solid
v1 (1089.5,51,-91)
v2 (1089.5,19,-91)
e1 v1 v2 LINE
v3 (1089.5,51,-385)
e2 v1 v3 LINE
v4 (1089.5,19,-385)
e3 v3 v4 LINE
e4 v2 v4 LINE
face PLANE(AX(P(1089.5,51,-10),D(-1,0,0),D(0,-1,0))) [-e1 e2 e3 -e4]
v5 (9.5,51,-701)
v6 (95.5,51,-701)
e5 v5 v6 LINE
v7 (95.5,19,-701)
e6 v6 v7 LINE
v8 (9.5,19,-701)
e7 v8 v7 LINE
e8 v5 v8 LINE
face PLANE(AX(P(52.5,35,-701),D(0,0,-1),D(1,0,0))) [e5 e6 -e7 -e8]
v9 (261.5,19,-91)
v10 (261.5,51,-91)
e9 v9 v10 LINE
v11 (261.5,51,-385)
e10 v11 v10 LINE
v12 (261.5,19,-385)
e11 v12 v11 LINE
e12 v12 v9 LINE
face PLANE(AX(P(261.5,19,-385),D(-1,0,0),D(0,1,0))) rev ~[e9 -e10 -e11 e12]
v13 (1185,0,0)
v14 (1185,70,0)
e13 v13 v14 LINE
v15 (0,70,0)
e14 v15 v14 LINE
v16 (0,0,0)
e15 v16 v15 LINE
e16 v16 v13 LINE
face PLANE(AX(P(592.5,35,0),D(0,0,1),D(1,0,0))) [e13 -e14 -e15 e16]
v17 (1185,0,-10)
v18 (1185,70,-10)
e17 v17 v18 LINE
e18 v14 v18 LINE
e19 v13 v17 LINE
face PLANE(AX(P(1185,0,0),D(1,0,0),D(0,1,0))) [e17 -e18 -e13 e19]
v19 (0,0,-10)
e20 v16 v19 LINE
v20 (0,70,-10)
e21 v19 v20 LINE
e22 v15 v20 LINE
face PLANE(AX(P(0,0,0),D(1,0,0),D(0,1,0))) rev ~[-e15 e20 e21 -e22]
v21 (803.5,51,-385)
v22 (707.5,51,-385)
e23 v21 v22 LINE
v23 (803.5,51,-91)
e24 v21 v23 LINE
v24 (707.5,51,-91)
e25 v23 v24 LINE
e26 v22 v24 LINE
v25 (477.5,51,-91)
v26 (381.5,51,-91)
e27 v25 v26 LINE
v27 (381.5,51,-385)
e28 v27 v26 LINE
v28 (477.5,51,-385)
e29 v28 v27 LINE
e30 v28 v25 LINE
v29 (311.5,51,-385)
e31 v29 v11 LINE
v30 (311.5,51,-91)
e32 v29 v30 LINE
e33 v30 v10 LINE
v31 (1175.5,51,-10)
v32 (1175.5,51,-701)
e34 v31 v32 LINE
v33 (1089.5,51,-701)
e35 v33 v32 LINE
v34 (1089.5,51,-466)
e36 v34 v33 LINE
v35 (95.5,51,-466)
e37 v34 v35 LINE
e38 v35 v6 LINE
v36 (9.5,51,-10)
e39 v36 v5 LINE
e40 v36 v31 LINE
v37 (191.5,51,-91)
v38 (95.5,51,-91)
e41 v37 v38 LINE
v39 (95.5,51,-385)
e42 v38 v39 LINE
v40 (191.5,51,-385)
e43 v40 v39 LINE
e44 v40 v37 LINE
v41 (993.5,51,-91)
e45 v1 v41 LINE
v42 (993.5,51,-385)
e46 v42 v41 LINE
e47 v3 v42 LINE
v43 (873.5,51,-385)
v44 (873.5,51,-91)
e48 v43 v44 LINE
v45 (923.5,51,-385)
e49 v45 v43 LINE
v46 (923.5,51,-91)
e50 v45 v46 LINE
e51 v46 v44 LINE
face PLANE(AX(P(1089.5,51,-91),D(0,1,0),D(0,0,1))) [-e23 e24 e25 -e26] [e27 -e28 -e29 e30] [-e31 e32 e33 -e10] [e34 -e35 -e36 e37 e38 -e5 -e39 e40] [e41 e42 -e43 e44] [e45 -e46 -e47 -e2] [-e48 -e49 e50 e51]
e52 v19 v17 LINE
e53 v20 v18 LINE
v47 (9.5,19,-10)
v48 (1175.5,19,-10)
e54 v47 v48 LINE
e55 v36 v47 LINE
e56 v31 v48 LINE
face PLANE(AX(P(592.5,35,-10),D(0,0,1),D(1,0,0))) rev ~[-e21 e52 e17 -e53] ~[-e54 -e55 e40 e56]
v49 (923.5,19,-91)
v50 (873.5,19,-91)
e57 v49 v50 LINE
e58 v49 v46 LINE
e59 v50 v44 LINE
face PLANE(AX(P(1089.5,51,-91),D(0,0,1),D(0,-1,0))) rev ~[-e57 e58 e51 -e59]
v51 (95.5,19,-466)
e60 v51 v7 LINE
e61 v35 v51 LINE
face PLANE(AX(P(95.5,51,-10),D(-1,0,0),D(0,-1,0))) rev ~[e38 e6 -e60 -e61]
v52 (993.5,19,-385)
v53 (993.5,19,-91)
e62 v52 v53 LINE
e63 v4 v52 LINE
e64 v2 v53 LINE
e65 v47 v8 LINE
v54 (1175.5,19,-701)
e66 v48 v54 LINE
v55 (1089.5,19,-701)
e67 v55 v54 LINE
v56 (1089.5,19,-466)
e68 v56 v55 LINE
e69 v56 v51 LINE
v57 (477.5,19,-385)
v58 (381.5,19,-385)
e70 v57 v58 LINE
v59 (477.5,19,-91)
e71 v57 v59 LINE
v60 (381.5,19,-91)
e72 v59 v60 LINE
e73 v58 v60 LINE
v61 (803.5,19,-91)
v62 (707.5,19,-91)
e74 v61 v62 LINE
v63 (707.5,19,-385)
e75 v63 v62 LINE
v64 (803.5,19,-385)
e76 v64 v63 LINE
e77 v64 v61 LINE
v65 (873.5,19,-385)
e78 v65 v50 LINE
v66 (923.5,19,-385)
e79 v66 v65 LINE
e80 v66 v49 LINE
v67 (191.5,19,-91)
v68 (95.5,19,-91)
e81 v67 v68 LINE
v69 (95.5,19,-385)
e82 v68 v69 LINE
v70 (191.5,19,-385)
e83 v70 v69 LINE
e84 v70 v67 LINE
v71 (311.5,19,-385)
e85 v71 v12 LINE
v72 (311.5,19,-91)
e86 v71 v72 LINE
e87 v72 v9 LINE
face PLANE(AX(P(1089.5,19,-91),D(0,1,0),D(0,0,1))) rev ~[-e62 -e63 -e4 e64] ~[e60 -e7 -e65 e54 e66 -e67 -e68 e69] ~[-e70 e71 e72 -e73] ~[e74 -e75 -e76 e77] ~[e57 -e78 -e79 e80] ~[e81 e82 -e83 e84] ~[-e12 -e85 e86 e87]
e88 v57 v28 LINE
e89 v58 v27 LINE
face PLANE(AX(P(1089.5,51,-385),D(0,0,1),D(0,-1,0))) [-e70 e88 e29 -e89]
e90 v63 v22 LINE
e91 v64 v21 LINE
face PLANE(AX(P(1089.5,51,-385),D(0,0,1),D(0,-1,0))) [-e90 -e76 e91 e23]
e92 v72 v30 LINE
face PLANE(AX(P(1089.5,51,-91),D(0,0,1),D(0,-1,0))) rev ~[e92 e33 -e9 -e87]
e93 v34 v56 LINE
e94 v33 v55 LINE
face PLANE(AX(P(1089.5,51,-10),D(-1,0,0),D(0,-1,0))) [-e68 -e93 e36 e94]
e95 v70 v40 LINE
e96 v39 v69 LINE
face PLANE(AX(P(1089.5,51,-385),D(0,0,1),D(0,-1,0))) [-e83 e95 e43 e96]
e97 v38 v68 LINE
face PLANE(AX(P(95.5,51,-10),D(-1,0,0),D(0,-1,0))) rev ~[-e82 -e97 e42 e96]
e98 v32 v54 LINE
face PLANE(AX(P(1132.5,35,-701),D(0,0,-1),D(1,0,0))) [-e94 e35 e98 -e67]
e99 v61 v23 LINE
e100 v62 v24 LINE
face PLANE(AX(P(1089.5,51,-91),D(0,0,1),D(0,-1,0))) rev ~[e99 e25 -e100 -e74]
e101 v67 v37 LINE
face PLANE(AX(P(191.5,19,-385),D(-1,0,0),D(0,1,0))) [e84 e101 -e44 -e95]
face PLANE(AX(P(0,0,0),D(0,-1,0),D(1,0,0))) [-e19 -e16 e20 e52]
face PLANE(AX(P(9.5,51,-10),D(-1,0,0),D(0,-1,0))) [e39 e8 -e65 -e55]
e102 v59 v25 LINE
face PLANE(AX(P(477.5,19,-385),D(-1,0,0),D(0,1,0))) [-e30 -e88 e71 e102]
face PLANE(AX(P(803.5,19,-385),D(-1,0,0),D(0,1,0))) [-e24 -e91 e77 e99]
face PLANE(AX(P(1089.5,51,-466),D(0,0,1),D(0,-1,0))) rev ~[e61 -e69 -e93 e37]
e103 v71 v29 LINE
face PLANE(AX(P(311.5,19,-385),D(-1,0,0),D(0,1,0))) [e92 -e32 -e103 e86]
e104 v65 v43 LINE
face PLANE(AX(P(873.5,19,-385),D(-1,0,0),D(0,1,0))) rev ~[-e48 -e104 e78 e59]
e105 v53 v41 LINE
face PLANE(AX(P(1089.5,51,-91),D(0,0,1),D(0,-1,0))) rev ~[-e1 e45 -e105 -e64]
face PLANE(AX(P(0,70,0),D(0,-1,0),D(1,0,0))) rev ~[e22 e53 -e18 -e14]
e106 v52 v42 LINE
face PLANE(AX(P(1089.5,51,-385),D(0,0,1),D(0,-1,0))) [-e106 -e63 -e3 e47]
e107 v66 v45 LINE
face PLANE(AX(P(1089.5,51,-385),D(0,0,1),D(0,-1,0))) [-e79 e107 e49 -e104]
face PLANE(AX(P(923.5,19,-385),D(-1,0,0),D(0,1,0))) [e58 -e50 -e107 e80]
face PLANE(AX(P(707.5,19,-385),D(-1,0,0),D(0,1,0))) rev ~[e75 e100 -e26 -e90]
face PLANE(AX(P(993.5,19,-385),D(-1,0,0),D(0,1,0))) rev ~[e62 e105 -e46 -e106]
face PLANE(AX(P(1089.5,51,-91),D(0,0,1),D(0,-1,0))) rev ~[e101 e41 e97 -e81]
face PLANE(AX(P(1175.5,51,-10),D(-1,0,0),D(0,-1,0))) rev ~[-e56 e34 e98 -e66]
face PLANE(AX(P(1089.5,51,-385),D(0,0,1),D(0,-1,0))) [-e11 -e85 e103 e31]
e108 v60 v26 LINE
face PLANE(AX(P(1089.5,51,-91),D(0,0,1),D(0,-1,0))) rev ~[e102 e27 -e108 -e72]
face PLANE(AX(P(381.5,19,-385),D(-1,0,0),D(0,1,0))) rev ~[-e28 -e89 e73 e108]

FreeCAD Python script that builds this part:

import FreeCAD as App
import Part
import Sketcher

V = App.Vector
Q = App.Units.Quantity

doc = App.newDocument("Part")
body = doc.addObject("PartDesign::Body", "Body")

# Sketch on XY plane
sketch1 = body.newObject("Sketcher::SketchObject", "Sketch")
sketch1.AttachmentSupport = (doc.getObject("XY_Plane"), [""])
sketch1.MapMode = "FlatFace"
sketch1.addGeometry([
    Part.LineSegment(V(0, 70, 0), V(0, 0, 0)),
    Part.LineSegment(V(0, 0, 0), V(1185, 0, 0)),
    Part.LineSegment(V(1185, 0, 0), V(1185, 70, 0)),
    Part.LineSegment(V(1185, 70, 0), V(0, 70, 0)),
], False)
sketch1.addConstraint([
    Sketcher.Constraint("Coincident", 0, 2, 1, 1),
    Sketcher.Constraint("Coincident", 1, 2, 2, 1),
    Sketcher.Constraint("Coincident", 2, 2, 3, 1),
    Sketcher.Constraint("Coincident", 3, 2, 0, 1),
    Sketcher.Constraint("Vertical", 0),
    Sketcher.Constraint("Horizontal", 1),
    Sketcher.Constraint("Vertical", 2),
    Sketcher.Constraint("Horizontal", 3),
    Sketcher.Constraint("Coincident", 0, 2, -1, 1),
    Sketcher.Constraint("DistanceX", 1, 1, 1, 2, Q("1185 mm")),
    Sketcher.Constraint("DistanceY", 0, 2, 0, 1, Q("70 mm")),
])
pad1 = body.newObject("PartDesign::Pad", "Pad")
pad1.Profile = sketch1
pad1.Length = 10
pad1.Reversed = True

# Sketch on XY plane
sketch2 = body.newObject("Sketcher::SketchObject", "Sketch001")
sketch2.AttachmentSupport = (doc.getObject("XY_Plane"), [""])
sketch2.MapMode = "FlatFace"
sketch2.AttachmentOffset = App.Placement(V(0, 0, -10), App.Rotation())
sketch2.addGeometry([
    Part.LineSegment(V(9.5, 19, 0), V(9.5, 51, 0)),  # 0
    Part.LineSegment(V(9.5, 51, 0), V(95.5, 51, 0)),  # 1
    Part.LineSegment(V(95.5, 51, 0), V(95.5, 19, 0)),  # 2
    Part.LineSegment(V(95.5, 19, 0), V(9.5, 19, 0)),  # 3
    Part.LineSegment(V(1089.5, 19, 0), V(1089.5, 51, 0)),  # 4
    Part.LineSegment(V(1089.5, 51, 0), V(1175.5, 51, 0)),  # 5
    Part.LineSegment(V(1175.5, 51, 0), V(1175.5, 19, 0)),  # 6
    Part.LineSegment(V(1175.5, 19, 0), V(1089.5, 19, 0)),  # 7
], False)
sketch2.addConstraint([
    Sketcher.Constraint("Coincident", 0, 2, 1, 1),
    Sketcher.Constraint("Coincident", 1, 2, 2, 1),
    Sketcher.Constraint("Coincident", 2, 2, 3, 1),
    Sketcher.Constraint("Coincident", 3, 2, 0, 1),
    Sketcher.Constraint("Coincident", 4, 2, 5, 1),
    Sketcher.Constraint("Coincident", 5, 2, 6, 1),
    Sketcher.Constraint("Coincident", 6, 2, 7, 1),
    Sketcher.Constraint("Coincident", 7, 2, 4, 1),
    Sketcher.Constraint("Vertical", 0),
    Sketcher.Constraint("Horizontal", 1),
    Sketcher.Constraint("Vertical", 2),
    Sketcher.Constraint("Horizontal", 3),
    Sketcher.Constraint("Vertical", 4),
    Sketcher.Constraint("Horizontal", 5),
    Sketcher.Constraint("Vertical", 6),
    Sketcher.Constraint("Horizontal", 7),
    Sketcher.Constraint("Horizontal", 1, 2, 4, 2),
    Sketcher.Constraint("Horizontal", 3, 2, 6, 2),
    Sketcher.Constraint("Equal", 3, 5),
    Sketcher.Constraint("DistanceX", 1, 1, 1, 2, Q("86 mm")),
    Sketcher.Constraint("DistanceY", 0, 1, 0, 2, Q("32 mm")),
    Sketcher.Constraint("DistanceY", -1, 1, 0, 2, Q("51 mm")),
    Sketcher.Constraint("DistanceX", 1, 2, 4, 2, Q("994 mm")),
    Sketcher.Constraint("DistanceX", -1, 1, 0, 2, Q("9.5 mm")),
])
pad2 = body.newObject("PartDesign::Pad", "Pad001")
pad2.Profile = sketch2
pad2.Length = 691
pad2.Reversed = True

# Sketch on YZ plane
sketch3 = body.newObject("Sketcher::SketchObject", "Sketch002")
sketch3.AttachmentSupport = (doc.getObject("YZ_Plane"), [""])
sketch3.MapMode = "FlatFace"
sketch3.AttachmentOffset = App.Placement(V(0, 0, 1089.5), App.Rotation())
sketch3.addGeometry([
    Part.LineSegment(V(51, -10, 0), V(51, -91, 0)),  # 0
    Part.LineSegment(V(51, -91, 0), V(19, -91, 0)),  # 1
    Part.LineSegment(V(19, -91, 0), V(19, -10, 0)),  # 2
    Part.LineSegment(V(19, -10, 0), V(51, -10, 0)),  # 3
    Part.LineSegment(V(51, -385, 0), V(51, -466, 0)),  # 4
    Part.LineSegment(V(51, -466, 0), V(19, -466, 0)),  # 5
    Part.LineSegment(V(19, -466, 0), V(19, -385, 0)),  # 6
    Part.LineSegment(V(19, -385, 0), V(51, -385, 0)),  # 7
], False)
sketch3.addConstraint([
    Sketcher.Constraint("Coincident", 0, 2, 1, 1),
    Sketcher.Constraint("Coincident", 1, 2, 2, 1),
    Sketcher.Constraint("Coincident", 2, 2, 3, 1),
    Sketcher.Constraint("Coincident", 3, 2, 0, 1),
    Sketcher.Constraint("Coincident", 4, 2, 5, 1),
    Sketcher.Constraint("Coincident", 5, 2, 6, 1),
    Sketcher.Constraint("Coincident", 6, 2, 7, 1),
    Sketcher.Constraint("Coincident", 7, 2, 4, 1),
    Sketcher.Constraint("Vertical", 0),
    Sketcher.Constraint("Horizontal", 1),
    Sketcher.Constraint("Vertical", 2),
    Sketcher.Constraint("Horizontal", 3),
    Sketcher.Constraint("Vertical", 4),
    Sketcher.Constraint("Horizontal", 5),
    Sketcher.Constraint("Vertical", 6),
    Sketcher.Constraint("Horizontal", 7),
    Sketcher.Constraint("Vertical", 3, 2, 4, 2),
    Sketcher.Constraint("Vertical", 2, 2, 5, 2),
    Sketcher.Constraint("Equal", 2, 4),
    Sketcher.Constraint("DistanceX", 1, 2, 1, 1, Q("32 mm")),
    Sketcher.Constraint("DistanceY", 0, 2, 0, 1, Q("81 mm")),
    Sketcher.Constraint("DistanceX", -1, 1, 0, 2, Q("51 mm")),
    Sketcher.Constraint("DistanceY", 0, 2, -1, 1, Q("91 mm")),
    Sketcher.Constraint("DistanceY", 4, 2, -1, 1, Q("466 mm")),
])
pad3 = body.newObject("PartDesign::Pad", "Pad002")
pad3.Profile = sketch3
pad3.Type = "UpToLast"
pad3.Reversed = True

# Sketch on XY plane
sketch4 = body.newObject("Sketcher::SketchObject", "Sketch003")
sketch4.AttachmentSupport = (doc.getObject("XY_Plane"), [""])
sketch4.MapMode = "FlatFace"
sketch4.AttachmentOffset = App.Placement(V(0, 0, -385), App.Rotation())
sketch4.addGeometry([
    Part.LineSegment(V(923.5, 51, 0), V(923.5, 19, 0)),  # 0
    Part.LineSegment(V(923.5, 19, 0), V(993.5, 19, 0)),  # 1
    Part.LineSegment(V(993.5, 19, 0), V(993.5, 51, 0)),  # 2
    Part.LineSegment(V(993.5, 51, 0), V(923.5, 51, 0)),  # 3
    Part.LineSegment(V(803.5, 51, 0), V(803.5, 19, 0)),  # 4
    Part.LineSegment(V(803.5, 19, 0), V(873.5, 19, 0)),  # 5
    Part.LineSegment(V(873.5, 19, 0), V(873.5, 51, 0)),  # 6
    Part.LineSegment(V(873.5, 51, 0), V(803.5, 51, 0)),  # 7
    Part.LineSegment(V(477.5, 51, 0), V(477.5, 19, 0)),  # 8
    Part.LineSegment(V(477.5, 19, 0), V(707.5, 19, 0)),  # 9
    Part.LineSegment(V(707.5, 19, 0), V(707.5, 51, 0)),  # 10
    Part.LineSegment(V(707.5, 51, 0), V(477.5, 51, 0)),  # 11
    Part.LineSegment(V(311.5, 51, 0), V(311.5, 19, 0)),  # 12
    Part.LineSegment(V(311.5, 19, 0), V(381.5, 19, 0)),  # 13
    Part.LineSegment(V(381.5, 19, 0), V(381.5, 51, 0)),  # 14
    Part.LineSegment(V(381.5, 51, 0), V(311.5, 51, 0)),  # 15
    Part.LineSegment(V(191.5, 51, 0), V(191.5, 19, 0)),  # 16
    Part.LineSegment(V(191.5, 19, 0), V(261.5, 19, 0)),  # 17
    Part.LineSegment(V(261.5, 19, 0), V(261.5, 51, 0)),  # 18
    Part.LineSegment(V(261.5, 51, 0), V(191.5, 51, 0)),  # 19
], False)
sketch4.addConstraint([
    Sketcher.Constraint("Coincident", 0, 2, 1, 1),
    Sketcher.Constraint("Coincident", 1, 2, 2, 1),
    Sketcher.Constraint("Coincident", 2, 2, 3, 1),
    Sketcher.Constraint("Coincident", 3, 2, 0, 1),
    Sketcher.Constraint("Coincident", 4, 2, 5, 1),
    Sketcher.Constraint("Coincident", 5, 2, 6, 1),
    Sketcher.Constraint("Coincident", 6, 2, 7, 1),
    Sketcher.Constraint("Coincident", 7, 2, 4, 1),
    Sketcher.Constraint("Coincident", 8, 2, 9, 1),
    Sketcher.Constraint("Coincident", 9, 2, 10, 1),
    Sketcher.Constraint("Coincident", 10, 2, 11, 1),
    Sketcher.Constraint("Coincident", 11, 2, 8, 1),
    Sketcher.Constraint("Coincident", 12, 2, 13, 1),
    Sketcher.Constraint("Coincident", 13, 2, 14, 1),
    Sketcher.Constraint("Coincident", 14, 2, 15, 1),
    Sketcher.Constraint("Coincident", 15, 2, 12, 1),
    Sketcher.Constraint("Coincident", 16, 2, 17, 1),
    Sketcher.Constraint("Coincident", 17, 2, 18, 1),
    Sketcher.Constraint("Coincident", 18, 2, 19, 1),
    Sketcher.Constraint("Coincident", 19, 2, 16, 1),
    Sketcher.Constraint("Vertical", 0),
    Sketcher.Constraint("Horizontal", 1),
    Sketcher.Constraint("Vertical", 2),
    Sketcher.Constraint("Horizontal", 3),
    Sketcher.Constraint("Vertical", 4),
    Sketcher.Constraint("Horizontal", 5),
    Sketcher.Constraint("Vertical", 6),
    Sketcher.Constraint("Horizontal", 7),
    Sketcher.Constraint("Vertical", 8),
    Sketcher.Constraint("Horizontal", 9),
    Sketcher.Constraint("Vertical", 10),
    Sketcher.Constraint("Horizontal", 11),
    Sketcher.Constraint("Vertical", 12),
    Sketcher.Constraint("Horizontal", 13),
    Sketcher.Constraint("Vertical", 14),
    Sketcher.Constraint("Horizontal", 15),
    Sketcher.Constraint("Vertical", 16),
    Sketcher.Constraint("Horizontal", 17),
    Sketcher.Constraint("Vertical", 18),
    Sketcher.Constraint("Horizontal", 19),
    Sketcher.Constraint("Horizontal", 1, 2, 4, 2),
    Sketcher.Constraint("Horizontal", 3, 2, 6, 2),
    Sketcher.Constraint("Horizontal", 5, 2, 8, 2),
    Sketcher.Constraint("Horizontal", 7, 2, 10, 2),
    Sketcher.Constraint("Horizontal", 9, 2, 12, 2),
    Sketcher.Constraint("Horizontal", 11, 2, 14, 2),
    Sketcher.Constraint("Horizontal", 13, 2, 16, 2),
    Sketcher.Constraint("Horizontal", 15, 2, 18, 2),
    Sketcher.Constraint("Equal", 3, 5),
    Sketcher.Constraint("Equal", 7, 13),
    Sketcher.Constraint("Equal", 15, 17),
    Sketcher.Constraint("DistanceX", 1, 1, 1, 2, Q("70 mm")),
    Sketcher.Constraint("DistanceX", 9, 1, 9, 2, Q("230 mm")),
    Sketcher.Constraint("DistanceY", 0, 2, 0, 1, Q("32 mm")),
    Sketcher.Constraint("DistanceY", -1, 1, 0, 2, Q("19 mm")),
    Sketcher.Constraint("DistanceX", 4, 2, 0, 2, Q("120 mm")),
    Sketcher.Constraint("DistanceX", 8, 2, 4, 2, Q("326 mm")),
    Sketcher.Constraint("DistanceX", 12, 2, 8, 2, Q("166 mm")),
    Sketcher.Constraint("DistanceX", 16, 2, 12, 2, Q("120 mm")),
    Sketcher.Constraint("DistanceX", -1, 1, 0, 2, Q("923.5 mm")),
])
pad4 = body.newObject("PartDesign::Pad", "Pad003")
pad4.Profile = sketch4
pad4.Type = "UpToLast"

doc.recompute()
